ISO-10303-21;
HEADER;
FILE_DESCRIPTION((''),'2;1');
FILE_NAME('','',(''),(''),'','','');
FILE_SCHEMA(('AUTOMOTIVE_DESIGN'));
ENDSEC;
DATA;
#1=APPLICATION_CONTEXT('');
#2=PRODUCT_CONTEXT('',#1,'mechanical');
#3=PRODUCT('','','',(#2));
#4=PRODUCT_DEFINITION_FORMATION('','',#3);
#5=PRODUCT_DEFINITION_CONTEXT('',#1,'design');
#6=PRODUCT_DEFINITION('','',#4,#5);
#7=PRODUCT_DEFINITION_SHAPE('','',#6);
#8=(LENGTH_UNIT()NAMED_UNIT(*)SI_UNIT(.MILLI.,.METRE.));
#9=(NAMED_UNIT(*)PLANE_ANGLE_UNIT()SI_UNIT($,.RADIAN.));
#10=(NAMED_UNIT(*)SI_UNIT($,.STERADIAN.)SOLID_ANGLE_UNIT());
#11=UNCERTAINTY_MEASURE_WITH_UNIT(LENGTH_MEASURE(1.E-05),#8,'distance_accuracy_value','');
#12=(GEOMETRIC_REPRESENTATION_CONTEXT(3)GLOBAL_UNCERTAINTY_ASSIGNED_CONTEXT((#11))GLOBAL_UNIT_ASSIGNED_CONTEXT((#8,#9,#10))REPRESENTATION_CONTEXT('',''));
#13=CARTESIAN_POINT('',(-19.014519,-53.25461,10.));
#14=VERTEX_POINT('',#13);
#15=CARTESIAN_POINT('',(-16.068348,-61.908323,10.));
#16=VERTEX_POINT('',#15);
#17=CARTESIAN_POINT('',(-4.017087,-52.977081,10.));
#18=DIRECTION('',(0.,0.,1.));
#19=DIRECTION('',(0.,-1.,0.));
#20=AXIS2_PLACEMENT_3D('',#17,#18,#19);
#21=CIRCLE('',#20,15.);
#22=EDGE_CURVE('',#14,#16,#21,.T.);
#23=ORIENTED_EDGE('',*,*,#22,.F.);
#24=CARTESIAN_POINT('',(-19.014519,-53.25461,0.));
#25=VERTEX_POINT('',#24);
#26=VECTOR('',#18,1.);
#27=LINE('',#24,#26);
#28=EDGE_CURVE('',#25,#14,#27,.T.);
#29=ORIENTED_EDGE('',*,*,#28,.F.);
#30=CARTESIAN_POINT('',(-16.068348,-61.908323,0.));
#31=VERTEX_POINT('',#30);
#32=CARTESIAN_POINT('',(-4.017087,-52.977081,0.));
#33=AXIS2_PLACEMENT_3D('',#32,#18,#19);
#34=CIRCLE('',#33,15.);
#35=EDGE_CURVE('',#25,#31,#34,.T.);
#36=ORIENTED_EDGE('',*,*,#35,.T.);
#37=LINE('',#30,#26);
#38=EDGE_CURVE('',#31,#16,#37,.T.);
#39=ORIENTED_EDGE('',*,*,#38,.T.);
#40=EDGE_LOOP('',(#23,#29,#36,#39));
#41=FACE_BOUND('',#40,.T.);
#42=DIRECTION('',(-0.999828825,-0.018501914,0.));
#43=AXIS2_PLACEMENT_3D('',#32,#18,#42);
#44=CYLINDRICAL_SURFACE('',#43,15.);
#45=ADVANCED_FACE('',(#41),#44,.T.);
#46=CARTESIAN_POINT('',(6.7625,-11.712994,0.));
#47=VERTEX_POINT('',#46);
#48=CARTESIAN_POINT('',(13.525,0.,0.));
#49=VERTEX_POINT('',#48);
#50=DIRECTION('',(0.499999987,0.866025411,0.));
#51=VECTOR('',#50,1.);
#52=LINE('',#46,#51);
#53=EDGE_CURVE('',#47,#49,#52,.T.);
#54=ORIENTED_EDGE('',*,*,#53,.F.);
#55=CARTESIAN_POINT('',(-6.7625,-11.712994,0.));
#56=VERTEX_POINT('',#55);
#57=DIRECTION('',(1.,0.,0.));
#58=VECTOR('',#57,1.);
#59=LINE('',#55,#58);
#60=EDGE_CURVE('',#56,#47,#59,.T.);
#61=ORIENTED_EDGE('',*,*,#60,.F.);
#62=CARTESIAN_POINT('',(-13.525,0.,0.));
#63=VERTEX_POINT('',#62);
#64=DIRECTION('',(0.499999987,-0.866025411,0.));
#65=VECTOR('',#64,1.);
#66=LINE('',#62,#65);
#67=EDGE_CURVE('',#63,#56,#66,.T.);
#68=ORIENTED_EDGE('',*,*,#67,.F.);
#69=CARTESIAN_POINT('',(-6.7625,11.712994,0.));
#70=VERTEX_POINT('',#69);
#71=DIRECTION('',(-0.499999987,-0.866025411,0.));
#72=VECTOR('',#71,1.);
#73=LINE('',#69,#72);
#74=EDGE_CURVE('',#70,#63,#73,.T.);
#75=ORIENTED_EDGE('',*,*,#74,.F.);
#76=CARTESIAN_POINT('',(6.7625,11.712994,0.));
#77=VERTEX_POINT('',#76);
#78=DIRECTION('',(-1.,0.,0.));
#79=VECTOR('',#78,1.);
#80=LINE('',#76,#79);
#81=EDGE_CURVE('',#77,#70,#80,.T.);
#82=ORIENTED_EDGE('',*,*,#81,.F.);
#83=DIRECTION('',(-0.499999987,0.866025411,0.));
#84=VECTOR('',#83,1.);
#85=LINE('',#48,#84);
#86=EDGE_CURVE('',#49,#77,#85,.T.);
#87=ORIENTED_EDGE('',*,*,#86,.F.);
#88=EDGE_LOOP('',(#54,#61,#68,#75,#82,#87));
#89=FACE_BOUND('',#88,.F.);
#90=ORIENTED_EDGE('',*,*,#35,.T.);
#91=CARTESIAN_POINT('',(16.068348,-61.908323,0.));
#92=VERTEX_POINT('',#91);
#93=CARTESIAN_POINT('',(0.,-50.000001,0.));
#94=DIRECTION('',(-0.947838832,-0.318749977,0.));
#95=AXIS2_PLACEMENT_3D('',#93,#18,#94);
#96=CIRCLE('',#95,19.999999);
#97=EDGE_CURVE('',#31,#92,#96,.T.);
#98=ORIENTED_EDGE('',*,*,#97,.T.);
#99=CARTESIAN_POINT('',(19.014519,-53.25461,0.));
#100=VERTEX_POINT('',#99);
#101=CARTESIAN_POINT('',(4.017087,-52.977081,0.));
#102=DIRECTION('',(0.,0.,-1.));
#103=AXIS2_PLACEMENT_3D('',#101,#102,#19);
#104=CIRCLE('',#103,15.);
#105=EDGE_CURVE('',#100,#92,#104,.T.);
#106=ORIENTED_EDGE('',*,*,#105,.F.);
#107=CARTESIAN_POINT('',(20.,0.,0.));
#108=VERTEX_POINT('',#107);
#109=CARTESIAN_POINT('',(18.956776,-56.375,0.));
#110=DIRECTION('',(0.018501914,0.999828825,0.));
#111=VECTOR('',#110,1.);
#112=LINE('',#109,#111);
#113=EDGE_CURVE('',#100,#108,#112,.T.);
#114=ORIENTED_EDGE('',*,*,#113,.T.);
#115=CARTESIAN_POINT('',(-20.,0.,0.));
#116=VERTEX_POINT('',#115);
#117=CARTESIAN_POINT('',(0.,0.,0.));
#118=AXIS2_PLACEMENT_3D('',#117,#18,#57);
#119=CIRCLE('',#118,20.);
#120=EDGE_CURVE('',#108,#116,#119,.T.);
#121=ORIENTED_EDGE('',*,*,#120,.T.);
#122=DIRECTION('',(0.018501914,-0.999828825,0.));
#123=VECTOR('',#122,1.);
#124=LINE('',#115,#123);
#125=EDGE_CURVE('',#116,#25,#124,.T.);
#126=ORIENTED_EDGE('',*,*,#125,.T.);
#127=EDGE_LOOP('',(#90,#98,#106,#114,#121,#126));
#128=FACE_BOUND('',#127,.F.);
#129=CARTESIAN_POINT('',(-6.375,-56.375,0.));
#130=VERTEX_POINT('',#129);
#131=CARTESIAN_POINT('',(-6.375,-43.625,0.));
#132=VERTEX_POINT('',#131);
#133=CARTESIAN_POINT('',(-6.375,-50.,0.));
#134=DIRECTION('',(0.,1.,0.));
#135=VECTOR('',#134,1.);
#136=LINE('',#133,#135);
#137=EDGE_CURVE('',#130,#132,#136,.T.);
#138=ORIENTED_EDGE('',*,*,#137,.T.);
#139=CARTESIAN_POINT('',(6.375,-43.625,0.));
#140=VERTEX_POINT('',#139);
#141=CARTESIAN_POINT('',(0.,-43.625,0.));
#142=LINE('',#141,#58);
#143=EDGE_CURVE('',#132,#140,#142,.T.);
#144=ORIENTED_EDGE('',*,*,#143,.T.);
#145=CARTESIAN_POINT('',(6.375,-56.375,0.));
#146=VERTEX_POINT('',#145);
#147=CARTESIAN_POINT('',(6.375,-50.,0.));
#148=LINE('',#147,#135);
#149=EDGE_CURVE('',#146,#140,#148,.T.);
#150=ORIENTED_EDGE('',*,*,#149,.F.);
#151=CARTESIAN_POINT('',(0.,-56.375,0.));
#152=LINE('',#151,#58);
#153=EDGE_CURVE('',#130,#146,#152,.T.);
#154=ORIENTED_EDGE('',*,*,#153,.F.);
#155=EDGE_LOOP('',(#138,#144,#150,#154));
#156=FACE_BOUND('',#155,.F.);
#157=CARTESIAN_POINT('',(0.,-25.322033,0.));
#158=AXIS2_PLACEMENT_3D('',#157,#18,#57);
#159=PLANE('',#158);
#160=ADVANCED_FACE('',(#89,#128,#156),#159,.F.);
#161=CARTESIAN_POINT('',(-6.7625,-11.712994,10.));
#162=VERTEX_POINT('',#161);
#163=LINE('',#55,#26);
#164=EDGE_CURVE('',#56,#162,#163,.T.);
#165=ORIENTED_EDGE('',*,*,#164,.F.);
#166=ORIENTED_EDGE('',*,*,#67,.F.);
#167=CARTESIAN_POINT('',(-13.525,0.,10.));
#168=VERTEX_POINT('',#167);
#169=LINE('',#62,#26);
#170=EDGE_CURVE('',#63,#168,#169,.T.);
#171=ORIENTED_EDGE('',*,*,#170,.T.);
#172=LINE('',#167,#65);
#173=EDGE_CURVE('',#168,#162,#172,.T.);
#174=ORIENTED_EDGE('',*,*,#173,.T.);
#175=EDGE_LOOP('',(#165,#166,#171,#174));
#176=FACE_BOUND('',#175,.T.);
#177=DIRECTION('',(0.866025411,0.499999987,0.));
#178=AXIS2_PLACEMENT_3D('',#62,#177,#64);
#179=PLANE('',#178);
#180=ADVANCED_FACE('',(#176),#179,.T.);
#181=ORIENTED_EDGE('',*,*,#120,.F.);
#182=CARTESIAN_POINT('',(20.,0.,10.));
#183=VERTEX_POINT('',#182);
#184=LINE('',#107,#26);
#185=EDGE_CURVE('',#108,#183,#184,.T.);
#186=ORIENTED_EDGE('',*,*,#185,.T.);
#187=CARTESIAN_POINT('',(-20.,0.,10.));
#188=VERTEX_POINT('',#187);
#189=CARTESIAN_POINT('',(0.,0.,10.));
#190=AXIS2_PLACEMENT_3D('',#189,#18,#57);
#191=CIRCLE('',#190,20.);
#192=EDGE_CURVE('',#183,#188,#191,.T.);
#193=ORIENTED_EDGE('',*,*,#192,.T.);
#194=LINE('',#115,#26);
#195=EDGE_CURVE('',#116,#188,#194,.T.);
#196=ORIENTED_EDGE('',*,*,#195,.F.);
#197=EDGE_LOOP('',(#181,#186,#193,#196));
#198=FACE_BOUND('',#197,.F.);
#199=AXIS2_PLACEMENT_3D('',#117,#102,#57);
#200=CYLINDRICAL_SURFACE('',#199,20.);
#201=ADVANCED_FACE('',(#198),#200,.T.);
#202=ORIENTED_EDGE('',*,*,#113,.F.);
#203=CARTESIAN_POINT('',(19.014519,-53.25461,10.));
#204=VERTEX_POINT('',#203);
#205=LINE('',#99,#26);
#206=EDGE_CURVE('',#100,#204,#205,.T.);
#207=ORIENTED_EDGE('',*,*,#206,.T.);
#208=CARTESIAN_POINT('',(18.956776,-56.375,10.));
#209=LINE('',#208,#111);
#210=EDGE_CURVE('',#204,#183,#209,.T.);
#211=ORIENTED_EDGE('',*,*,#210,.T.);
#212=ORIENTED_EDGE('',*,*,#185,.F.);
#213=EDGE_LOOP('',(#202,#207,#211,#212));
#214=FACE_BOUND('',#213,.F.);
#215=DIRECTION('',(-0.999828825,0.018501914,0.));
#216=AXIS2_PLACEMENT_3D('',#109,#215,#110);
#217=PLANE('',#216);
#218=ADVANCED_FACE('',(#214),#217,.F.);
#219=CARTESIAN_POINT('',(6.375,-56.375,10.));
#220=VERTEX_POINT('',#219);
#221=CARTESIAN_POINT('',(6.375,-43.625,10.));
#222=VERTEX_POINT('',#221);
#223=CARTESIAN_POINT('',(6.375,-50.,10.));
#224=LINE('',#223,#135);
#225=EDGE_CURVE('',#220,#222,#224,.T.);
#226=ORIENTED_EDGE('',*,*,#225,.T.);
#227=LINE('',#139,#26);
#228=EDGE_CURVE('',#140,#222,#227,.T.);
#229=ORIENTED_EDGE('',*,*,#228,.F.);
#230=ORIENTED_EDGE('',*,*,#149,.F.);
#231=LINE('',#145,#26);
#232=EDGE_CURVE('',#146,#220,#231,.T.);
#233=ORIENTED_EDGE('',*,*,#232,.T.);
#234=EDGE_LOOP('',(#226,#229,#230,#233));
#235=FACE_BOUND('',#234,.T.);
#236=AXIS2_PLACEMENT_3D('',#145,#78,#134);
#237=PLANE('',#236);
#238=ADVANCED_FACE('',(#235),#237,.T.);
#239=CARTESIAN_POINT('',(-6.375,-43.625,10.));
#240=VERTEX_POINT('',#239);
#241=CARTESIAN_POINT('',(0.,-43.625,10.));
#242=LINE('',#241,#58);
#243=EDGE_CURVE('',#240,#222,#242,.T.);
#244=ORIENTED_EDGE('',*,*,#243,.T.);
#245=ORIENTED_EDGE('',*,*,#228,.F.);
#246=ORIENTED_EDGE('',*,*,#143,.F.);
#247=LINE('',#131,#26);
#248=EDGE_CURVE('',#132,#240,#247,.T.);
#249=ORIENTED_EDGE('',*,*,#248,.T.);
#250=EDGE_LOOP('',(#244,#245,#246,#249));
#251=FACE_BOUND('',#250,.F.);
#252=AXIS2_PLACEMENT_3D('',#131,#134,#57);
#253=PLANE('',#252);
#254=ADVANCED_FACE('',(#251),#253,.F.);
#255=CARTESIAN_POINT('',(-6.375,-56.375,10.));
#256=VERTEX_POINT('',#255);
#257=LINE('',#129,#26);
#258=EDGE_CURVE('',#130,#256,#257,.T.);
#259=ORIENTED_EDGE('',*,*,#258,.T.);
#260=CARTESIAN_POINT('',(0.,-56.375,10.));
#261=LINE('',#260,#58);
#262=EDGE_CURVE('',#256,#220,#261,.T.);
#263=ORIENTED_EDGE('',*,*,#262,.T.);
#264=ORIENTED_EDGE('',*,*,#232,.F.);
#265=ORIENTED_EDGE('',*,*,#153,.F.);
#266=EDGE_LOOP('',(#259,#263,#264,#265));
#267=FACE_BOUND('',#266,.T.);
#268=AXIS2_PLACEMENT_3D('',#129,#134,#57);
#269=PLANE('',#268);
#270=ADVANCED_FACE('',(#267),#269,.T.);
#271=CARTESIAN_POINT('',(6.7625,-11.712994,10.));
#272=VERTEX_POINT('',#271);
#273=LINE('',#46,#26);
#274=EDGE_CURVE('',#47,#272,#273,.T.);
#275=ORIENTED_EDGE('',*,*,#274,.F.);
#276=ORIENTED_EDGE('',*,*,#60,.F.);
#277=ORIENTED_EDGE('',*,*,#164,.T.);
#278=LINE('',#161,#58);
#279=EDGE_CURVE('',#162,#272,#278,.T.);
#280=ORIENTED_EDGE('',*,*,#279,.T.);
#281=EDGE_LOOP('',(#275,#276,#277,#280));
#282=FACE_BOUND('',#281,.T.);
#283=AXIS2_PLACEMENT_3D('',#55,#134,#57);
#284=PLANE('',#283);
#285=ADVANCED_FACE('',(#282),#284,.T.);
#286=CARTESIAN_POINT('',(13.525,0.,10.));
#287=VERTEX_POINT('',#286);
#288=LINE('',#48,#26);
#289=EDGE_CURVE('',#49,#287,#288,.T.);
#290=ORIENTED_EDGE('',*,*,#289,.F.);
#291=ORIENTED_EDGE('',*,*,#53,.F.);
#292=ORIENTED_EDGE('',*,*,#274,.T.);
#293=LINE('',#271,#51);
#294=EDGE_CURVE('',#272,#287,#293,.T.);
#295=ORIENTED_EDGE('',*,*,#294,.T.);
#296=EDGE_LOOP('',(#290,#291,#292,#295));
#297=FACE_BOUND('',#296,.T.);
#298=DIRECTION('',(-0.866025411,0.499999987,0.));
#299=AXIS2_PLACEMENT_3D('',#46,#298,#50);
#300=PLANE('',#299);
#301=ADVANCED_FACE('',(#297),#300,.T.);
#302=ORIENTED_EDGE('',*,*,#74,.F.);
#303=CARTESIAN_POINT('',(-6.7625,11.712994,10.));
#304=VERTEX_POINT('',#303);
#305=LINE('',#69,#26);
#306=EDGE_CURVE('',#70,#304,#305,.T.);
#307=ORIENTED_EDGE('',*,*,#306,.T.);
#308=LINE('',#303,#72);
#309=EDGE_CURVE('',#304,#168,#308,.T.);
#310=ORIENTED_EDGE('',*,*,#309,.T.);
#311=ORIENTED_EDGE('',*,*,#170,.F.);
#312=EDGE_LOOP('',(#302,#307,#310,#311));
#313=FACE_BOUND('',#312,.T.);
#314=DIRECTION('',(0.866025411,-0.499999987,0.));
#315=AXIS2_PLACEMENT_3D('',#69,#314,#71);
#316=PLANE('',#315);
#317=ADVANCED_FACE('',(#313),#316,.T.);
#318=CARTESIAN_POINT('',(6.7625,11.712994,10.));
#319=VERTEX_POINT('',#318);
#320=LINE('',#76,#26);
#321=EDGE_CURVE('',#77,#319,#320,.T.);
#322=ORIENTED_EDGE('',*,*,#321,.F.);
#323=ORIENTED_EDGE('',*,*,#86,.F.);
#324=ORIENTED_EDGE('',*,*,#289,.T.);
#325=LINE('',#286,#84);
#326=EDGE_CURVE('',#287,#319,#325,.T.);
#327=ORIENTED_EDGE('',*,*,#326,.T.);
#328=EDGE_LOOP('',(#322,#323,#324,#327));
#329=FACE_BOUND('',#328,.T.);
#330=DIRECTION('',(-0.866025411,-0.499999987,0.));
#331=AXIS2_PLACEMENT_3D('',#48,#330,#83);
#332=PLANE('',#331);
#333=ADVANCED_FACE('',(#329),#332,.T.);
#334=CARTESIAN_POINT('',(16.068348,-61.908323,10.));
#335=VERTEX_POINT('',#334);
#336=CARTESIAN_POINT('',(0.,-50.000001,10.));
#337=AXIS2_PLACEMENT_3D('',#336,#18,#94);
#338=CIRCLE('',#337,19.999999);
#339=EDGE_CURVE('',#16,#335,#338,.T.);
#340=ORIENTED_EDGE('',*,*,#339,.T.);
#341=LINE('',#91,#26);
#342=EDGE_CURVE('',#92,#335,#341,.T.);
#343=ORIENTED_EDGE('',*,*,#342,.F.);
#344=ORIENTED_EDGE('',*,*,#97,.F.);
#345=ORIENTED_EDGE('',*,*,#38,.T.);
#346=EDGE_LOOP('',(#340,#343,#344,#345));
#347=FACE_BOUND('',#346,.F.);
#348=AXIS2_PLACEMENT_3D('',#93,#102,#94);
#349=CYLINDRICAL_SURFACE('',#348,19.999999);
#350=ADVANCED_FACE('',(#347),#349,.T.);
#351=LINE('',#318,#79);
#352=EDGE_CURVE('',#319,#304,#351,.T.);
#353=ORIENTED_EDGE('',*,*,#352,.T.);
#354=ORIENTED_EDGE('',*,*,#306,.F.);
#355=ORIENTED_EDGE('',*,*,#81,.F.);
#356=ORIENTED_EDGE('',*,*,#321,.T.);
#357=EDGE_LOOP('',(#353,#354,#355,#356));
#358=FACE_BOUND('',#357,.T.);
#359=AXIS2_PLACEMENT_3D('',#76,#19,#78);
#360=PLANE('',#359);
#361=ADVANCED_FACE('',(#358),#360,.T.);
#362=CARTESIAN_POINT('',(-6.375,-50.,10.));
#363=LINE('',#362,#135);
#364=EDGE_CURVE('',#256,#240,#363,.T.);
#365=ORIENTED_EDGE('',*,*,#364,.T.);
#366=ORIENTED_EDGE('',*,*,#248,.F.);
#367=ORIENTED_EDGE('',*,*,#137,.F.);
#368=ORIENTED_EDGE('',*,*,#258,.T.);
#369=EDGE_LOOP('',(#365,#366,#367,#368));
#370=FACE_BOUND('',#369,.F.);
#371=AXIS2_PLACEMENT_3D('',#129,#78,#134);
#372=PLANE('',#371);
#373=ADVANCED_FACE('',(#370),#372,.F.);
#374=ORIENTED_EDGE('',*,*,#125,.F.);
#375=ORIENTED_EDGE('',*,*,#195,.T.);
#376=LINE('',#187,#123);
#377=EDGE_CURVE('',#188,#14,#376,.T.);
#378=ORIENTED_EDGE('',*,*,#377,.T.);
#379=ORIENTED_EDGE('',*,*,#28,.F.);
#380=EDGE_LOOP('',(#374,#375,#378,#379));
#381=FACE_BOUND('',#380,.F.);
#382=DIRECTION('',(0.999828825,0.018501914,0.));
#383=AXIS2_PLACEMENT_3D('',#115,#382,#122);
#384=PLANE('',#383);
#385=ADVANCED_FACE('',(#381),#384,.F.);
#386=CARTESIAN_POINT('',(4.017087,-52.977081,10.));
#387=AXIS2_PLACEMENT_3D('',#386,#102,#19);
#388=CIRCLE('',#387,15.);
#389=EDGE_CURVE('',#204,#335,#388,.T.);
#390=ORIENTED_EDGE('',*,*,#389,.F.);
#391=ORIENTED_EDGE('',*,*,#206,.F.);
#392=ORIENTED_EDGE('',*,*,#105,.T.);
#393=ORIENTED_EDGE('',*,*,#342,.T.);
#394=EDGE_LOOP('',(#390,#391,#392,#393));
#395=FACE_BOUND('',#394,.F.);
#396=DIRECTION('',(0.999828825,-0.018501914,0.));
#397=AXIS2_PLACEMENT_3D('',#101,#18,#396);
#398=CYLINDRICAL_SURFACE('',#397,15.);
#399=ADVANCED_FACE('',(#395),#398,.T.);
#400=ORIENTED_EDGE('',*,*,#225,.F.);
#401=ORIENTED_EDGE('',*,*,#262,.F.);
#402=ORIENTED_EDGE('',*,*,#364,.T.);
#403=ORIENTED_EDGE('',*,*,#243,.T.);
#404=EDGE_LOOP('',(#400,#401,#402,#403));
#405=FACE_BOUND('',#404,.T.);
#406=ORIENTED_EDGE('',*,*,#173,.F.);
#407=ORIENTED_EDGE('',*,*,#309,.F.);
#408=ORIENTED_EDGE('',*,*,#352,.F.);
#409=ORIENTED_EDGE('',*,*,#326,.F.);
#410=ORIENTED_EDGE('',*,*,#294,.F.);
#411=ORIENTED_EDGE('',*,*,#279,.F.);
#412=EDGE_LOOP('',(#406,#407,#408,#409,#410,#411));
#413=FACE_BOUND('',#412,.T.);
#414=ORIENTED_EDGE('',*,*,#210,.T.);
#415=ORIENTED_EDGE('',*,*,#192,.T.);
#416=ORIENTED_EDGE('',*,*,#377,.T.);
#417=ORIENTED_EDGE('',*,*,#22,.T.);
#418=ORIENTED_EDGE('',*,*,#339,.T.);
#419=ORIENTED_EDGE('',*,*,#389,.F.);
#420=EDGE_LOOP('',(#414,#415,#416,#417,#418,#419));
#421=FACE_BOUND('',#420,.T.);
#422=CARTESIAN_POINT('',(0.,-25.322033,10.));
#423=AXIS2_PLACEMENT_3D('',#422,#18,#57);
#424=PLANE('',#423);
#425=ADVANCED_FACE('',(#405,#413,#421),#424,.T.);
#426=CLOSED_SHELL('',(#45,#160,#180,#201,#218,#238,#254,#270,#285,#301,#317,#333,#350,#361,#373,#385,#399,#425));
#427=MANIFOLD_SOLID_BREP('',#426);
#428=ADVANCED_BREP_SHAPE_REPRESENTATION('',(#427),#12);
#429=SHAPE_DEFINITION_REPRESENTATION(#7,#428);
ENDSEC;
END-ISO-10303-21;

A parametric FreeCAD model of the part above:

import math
import FreeCAD as App
import Part
import Sketcher

V = App.Vector
Q = App.Units.Quantity


def edges_at(feature, points):
    """Names of the edges that pass closest to the given points."""
    edges = feature.Shape.Edges
    near = lambda p: min(range(len(edges)), key=lambda i: edges[i].distToShape(Part.Vertex(*p))[0])
    return sorted({f"Edge{near(p) + 1}" for p in points})


def add_polygon(sketch, points):
    """Adds a closed chain of lines whose ends are joined by coincident constraints."""
    first, n = sketch.GeometryCount, len(points)
    for a, b in zip(points, points[1:] + points[:1]):
        sketch.addGeometry(Part.LineSegment(App.Vector(*a, 0), App.Vector(*b, 0)), False)
    for i in range(n):
        sketch.addConstraint(Sketcher.Constraint("Coincident", first + i, 2, first + (i + 1) % n, 1))

doc = App.newDocument("Part")
body = doc.addObject("PartDesign::Body", "Body")

# Sketch on XY plane
sketch1 = body.newObject("Sketcher::SketchObject", "Sketch")
sketch1.AttachmentSupport = (doc.getObject("XY_Plane"), [""])
sketch1.MapMode = "FlatFace"
sketch1.addGeometry(Part.ArcOfCircle(Part.Circle(V(0, 0, 0), V(0, 0, 1), 20), math.radians(0), math.radians(180)), False)  # 0
sketch1.addGeometry(Part.LineSegment(V(-20, 0, 0), V(-19, -56, 0)), False)  # 1
sketch1.addGeometry(Part.ArcOfCircle(Part.Circle(V(0, -50, 0), V(0, 0, 1), 20), math.radians(-161), math.radians(-19)), False)  # 2
sketch1.addGeometry(Part.LineSegment(V(19, -56, 0), V(20, 0, 0)), False)  # 3
add_polygon(sketch1, [(6, -56), (-6, -56), (-6, -44), (6, -44)])  # lines 4-7
add_polygon(sketch1, [(-7, -12), (-14, 0), (-7, 12), (7, 12), (14, 0), (7, -12)])  # lines 8-13
sketch1.addConstraint(Sketcher.Constraint("Coincident", 0, 2, 1, 1))
sketch1.addConstraint(Sketcher.Constraint("Coincident", 1, 2, 2, 1))
sketch1.addConstraint(Sketcher.Constraint("Coincident", 2, 2, 3, 1))
sketch1.addConstraint(Sketcher.Constraint("Coincident", 3, 2, 0, 1))
sketch1.addConstraint(Sketcher.Constraint("Horizontal", 4))
sketch1.addConstraint(Sketcher.Constraint("Vertical", 5))
sketch1.addConstraint(Sketcher.Constraint("Horizontal", 6))
sketch1.addConstraint(Sketcher.Constraint("Vertical", 7))
sketch1.addConstraint(Sketcher.Constraint("Horizontal", 10))
sketch1.addConstraint(Sketcher.Constraint("Horizontal", 13))
sketch1.addConstraint(Sketcher.Constraint("Coincident", 0, 3, -1, 1))
sketch1.addConstraint(Sketcher.Constraint("Equal", 0, 2))
sketch1.addConstraint(Sketcher.Constraint("Symmetric", 8, 2, 11, 2, -1, 1))
sketch1.addConstraint(Sketcher.Constraint("Symmetric", 9, 2, 12, 2, -1, 1))
sketch1.addConstraint(Sketcher.Constraint("Symmetric", 1, 2, 2, 2, -2))
sketch1.addConstraint(Sketcher.Constraint("PointOnObject", 0, 2, -1))
sketch1.addConstraint(Sketcher.Constraint("PointOnObject", 3, 2, -1))
sketch1.addConstraint(Sketcher.Constraint("PointOnObject", 8, 2, -1))
sketch1.addConstraint(Sketcher.Constraint("Parallel", 8, 11))
sketch1.addConstraint(Sketcher.Constraint("Horizontal", 2, 2, 4, 2))
sketch1.addConstraint(Sketcher.Constraint("Vertical", 10, 2, 12, 2))
sketch1.addConstraint(Sketcher.Constraint("Equal", 6, 5))
sketch1.addConstraint(Sketcher.Constraint("Radius", 0, Q("20 mm")))
sketch1.addConstraint(Sketcher.Constraint("Angle", 8, Q("119.999999 deg")))
sketch1.addConstraint(Sketcher.Constraint("DistanceY", 2, 3, -1, 1, Q("50.000001 mm")))
sketch1.addConstraint(Sketcher.Constraint("DistanceX", 4, 2, 4, 1, Q("12.75 mm")))
sketch1.addConstraint(Sketcher.Constraint("DistanceX", 8, 2, 6, 2, Q("19.9 mm")))
sketch1.addConstraint(Sketcher.Constraint("DistanceX", 10, 1, 10, 2, Q("13.525 mm")))
sketch1.addConstraint(Sketcher.Constraint("DistanceX", 8, 2, 11, 2, Q("27.05 mm")))
sketch1.addConstraint(Sketcher.Constraint("DistanceY", 1, 2, -1, 1, Q("56.375 mm")))
pad1 = body.newObject("PartDesign::Pad", "Pad")
pad1.Profile = sketch1
pad1.Length = 10
doc.recompute()

fillet = body.newObject("PartDesign::Fillet", "Fillet")
fillet.Base = (pad1, edges_at(pad1, [
    (-20, 0, 5),
    (-18.957, -56.375, 5),
    (18.957, -56.375, 5),
    (20, 0, 5),
]))
fillet.Radius = 15

doc.recompute()
